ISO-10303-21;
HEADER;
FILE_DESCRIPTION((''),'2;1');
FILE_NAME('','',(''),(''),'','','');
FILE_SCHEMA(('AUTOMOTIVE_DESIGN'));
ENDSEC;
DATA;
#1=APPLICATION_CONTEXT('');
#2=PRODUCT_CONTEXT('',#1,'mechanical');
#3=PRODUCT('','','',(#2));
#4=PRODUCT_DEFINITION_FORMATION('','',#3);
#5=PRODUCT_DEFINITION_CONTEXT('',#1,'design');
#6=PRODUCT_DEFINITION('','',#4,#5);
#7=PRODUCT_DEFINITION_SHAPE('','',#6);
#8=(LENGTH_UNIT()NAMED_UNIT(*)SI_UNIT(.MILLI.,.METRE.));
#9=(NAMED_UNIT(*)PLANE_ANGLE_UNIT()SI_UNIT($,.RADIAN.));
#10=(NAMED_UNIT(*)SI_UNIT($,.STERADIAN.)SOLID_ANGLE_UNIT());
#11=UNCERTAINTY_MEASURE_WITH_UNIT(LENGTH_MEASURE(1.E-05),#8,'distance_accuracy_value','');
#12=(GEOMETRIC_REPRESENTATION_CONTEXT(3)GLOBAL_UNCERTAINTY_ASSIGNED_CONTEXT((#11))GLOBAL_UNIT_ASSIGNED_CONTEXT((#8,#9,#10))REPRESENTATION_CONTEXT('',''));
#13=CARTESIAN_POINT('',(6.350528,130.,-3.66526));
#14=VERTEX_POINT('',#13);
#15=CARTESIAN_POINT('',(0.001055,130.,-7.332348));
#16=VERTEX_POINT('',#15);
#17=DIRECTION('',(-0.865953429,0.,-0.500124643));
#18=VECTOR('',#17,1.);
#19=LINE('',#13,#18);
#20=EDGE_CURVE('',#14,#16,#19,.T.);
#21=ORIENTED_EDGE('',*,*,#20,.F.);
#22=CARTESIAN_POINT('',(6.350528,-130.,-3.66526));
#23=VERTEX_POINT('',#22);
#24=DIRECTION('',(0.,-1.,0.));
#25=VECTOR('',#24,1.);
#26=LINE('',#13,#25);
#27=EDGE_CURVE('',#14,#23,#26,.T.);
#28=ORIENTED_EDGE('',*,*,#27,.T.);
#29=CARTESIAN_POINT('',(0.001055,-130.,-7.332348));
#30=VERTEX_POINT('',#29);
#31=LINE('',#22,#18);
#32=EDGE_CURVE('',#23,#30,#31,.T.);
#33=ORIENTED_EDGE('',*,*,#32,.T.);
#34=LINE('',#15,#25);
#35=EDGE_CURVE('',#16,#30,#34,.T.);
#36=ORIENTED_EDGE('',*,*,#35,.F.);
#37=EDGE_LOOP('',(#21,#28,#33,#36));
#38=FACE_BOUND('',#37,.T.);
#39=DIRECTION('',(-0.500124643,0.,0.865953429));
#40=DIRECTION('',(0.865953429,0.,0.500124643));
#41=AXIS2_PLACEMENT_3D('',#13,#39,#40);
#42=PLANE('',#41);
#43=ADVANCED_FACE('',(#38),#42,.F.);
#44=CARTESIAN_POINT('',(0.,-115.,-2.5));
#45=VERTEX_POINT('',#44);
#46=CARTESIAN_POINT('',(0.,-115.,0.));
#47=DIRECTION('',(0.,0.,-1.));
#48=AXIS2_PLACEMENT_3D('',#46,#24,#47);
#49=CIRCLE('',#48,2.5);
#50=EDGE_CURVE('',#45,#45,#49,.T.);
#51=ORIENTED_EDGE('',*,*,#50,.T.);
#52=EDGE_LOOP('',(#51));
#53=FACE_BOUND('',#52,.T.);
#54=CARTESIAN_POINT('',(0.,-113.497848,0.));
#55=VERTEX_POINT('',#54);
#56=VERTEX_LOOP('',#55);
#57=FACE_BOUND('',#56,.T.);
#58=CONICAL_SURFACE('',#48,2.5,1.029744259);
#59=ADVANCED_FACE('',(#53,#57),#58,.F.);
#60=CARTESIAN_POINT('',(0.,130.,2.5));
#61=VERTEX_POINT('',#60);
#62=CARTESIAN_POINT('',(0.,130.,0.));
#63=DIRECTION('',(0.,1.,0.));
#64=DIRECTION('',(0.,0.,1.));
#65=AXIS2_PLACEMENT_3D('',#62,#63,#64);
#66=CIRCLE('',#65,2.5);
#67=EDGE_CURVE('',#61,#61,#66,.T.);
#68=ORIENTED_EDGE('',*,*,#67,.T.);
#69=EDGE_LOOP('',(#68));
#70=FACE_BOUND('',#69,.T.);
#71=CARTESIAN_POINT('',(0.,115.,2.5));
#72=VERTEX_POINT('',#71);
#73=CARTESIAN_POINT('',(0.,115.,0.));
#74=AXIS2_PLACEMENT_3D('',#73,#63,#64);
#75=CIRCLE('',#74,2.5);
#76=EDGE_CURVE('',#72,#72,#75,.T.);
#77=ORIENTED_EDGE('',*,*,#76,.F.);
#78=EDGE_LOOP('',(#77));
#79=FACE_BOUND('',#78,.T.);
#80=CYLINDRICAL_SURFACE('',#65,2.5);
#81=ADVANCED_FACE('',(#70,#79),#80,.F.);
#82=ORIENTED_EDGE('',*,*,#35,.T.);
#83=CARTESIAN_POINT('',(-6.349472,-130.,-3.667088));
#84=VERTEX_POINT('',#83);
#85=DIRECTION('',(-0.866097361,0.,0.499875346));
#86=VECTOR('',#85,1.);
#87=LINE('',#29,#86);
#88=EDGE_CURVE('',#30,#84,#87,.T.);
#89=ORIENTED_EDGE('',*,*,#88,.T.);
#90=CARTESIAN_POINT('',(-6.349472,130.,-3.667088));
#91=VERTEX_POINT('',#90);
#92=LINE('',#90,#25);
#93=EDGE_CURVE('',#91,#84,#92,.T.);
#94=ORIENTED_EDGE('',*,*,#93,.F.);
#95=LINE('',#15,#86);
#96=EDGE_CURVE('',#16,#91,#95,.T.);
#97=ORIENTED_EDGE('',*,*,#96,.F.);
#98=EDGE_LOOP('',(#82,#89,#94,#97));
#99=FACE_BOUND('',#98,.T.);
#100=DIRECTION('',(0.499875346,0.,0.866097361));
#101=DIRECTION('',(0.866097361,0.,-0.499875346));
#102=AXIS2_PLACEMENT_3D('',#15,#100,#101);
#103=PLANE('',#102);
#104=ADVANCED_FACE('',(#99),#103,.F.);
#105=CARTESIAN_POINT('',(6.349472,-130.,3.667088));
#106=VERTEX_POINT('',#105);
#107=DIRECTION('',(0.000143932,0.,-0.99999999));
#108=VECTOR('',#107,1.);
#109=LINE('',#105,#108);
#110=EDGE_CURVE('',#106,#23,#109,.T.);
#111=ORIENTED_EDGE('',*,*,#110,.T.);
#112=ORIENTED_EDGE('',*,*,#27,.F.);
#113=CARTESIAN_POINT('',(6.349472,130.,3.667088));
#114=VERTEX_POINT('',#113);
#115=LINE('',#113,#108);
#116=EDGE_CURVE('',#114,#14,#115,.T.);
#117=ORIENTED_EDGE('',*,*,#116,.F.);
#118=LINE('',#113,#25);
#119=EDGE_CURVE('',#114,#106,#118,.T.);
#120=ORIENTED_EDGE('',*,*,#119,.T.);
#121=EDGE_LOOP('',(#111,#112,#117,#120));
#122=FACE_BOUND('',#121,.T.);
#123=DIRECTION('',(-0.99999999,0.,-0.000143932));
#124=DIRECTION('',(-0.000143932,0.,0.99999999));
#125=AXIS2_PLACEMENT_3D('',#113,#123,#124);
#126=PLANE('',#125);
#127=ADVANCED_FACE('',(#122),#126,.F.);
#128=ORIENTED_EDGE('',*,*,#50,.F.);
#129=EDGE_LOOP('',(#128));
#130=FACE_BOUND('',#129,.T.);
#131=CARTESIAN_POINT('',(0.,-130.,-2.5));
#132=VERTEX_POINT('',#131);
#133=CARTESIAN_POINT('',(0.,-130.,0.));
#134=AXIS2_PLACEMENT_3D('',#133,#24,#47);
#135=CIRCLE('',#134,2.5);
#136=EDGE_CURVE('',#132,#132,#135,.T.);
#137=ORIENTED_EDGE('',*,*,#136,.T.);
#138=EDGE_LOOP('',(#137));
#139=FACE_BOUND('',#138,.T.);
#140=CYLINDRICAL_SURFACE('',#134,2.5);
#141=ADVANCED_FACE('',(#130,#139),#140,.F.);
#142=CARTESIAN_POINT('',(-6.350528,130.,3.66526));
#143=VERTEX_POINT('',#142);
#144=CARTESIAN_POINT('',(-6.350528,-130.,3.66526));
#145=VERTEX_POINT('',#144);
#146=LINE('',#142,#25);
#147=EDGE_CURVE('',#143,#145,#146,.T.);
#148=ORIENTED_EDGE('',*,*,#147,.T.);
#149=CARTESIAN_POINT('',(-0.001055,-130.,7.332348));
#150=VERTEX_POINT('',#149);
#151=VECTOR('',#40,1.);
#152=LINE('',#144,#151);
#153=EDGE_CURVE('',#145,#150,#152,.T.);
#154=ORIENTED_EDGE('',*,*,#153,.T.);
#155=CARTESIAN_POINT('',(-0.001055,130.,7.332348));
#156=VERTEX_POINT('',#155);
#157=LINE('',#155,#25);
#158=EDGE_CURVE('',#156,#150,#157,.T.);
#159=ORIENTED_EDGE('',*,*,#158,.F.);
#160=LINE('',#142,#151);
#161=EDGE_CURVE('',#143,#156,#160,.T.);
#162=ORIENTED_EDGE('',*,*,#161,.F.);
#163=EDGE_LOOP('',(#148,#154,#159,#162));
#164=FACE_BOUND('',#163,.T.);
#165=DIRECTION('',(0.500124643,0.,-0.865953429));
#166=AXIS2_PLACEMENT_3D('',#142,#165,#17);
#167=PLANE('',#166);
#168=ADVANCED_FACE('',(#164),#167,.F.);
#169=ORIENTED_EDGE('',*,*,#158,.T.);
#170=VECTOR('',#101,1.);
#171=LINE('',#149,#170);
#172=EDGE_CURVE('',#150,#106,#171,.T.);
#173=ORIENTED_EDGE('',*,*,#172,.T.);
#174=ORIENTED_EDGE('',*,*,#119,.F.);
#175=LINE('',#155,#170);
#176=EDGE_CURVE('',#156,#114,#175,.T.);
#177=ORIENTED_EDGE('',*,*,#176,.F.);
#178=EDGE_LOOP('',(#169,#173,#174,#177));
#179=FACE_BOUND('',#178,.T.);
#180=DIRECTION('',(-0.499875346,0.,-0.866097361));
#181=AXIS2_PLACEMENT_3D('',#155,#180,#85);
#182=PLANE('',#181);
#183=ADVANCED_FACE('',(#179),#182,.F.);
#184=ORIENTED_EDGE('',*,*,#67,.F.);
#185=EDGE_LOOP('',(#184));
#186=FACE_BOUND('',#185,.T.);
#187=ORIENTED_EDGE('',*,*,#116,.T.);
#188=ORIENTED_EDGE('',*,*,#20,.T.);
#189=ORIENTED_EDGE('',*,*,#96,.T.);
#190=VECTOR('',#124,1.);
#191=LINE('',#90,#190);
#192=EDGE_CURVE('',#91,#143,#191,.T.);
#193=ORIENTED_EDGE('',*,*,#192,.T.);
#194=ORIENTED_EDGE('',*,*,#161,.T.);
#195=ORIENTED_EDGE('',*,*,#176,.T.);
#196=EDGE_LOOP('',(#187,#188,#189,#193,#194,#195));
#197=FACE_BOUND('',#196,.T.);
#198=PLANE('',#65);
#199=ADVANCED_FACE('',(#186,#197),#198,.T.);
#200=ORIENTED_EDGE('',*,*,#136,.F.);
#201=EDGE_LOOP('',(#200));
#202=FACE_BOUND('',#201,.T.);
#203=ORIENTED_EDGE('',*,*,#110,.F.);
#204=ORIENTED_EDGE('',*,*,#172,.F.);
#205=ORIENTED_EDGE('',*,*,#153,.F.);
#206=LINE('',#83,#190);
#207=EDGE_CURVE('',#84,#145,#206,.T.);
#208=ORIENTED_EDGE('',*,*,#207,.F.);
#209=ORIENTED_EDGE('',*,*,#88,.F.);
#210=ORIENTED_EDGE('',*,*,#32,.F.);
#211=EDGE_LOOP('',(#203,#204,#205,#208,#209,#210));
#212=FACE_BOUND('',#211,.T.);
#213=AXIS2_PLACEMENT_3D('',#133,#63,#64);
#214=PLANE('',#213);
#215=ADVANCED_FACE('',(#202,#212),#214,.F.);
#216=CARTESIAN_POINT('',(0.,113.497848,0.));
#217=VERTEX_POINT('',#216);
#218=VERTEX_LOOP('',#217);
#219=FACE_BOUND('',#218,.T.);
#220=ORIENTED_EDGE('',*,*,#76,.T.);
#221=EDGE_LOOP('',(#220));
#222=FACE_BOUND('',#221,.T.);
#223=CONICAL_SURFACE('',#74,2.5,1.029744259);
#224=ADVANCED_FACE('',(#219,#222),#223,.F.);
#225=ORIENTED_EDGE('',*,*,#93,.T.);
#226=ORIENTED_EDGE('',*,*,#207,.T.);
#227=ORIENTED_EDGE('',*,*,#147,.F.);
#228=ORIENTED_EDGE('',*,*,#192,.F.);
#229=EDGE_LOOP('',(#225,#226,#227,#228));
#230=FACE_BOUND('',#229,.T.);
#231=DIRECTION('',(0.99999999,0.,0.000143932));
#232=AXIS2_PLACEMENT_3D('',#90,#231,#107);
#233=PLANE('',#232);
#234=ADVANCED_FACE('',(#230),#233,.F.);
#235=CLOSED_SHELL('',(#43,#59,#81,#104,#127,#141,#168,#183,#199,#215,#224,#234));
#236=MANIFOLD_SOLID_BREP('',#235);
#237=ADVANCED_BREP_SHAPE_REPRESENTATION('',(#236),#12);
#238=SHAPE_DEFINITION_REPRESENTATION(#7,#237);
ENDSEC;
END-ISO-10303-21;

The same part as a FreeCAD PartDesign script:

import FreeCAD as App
import Part
import Sketcher
from FreeCAD import Vector

doc = App.newDocument("Part")
params = doc.addObject("Spreadsheet::Sheet", "Params")
for row, (alias, value) in enumerate([
    ("pad1_length", "260 mm"),
    ("sketch2_diameter", "5 mm"),
    ("hole_diameter", "5 mm"),
    ("hole_depth", "15 mm"),
    ("sketch3_diameter", "5 mm"),
    ("hole2_diameter", "5 mm"),
    ("hole2_depth", "15 mm"),
], start=1):
    params.set(f"A{row}", alias)
    params.set(f"B{row}", "=" + value)
    params.setAlias(f"B{row}", alias)

body = doc.addObject("PartDesign::Body", "Body")

# Sketch on XZ plane
sketch1 = body.newObject("Sketcher::SketchObject", "Sketch")
sketch1.AttachmentSupport = (doc.getObject("XZ_Plane"), [""])
sketch1.MapMode = "FlatFace"
sketch1.addGeometry(Part.LineSegment(Vector(6, 4, 0), Vector(6, -4, 0)), False)
sketch1.addGeometry(Part.LineSegment(Vector(6, -4, 0), Vector(0, -7, 0)), False)
sketch1.addGeometry(Part.LineSegment(Vector(0, -7, 0), Vector(-6, -4, 0)), False)
sketch1.addGeometry(Part.LineSegment(Vector(-6, -4, 0), Vector(-6, 4, 0)), False)
sketch1.addGeometry(Part.LineSegment(Vector(-6, 4, 0), Vector(0, 7, 0)), False)
sketch1.addGeometry(Part.LineSegment(Vector(0, 7, 0), Vector(6, 4, 0)), False)
sketch1.addConstraint(Sketcher.Constraint("Coincident", 0, 2, 1, 1))
sketch1.addConstraint(Sketcher.Constraint("Coincident", 1, 2, 2, 1))
sketch1.addConstraint(Sketcher.Constraint("Coincident", 2, 2, 3, 1))
sketch1.addConstraint(Sketcher.Constraint("Coincident", 3, 2, 4, 1))
sketch1.addConstraint(Sketcher.Constraint("Coincident", 4, 2, 5, 1))
sketch1.addConstraint(Sketcher.Constraint("Coincident", 5, 2, 0, 1))
sketch1.addConstraint(Sketcher.Constraint("Symmetric", 0, 2, 3, 2, -1, 1))
sketch1.addConstraint(Sketcher.Constraint("Symmetric", 1, 2, 4, 2, -1, 1))
sketch1.addConstraint(Sketcher.Constraint("Symmetric", 2, 2, 5, 2, -1, 1))
sketch1.addConstraint(Sketcher.Constraint("Equal", 0, 1))
sketch1.addConstraint(Sketcher.Constraint("Equal", 1, 2))
sketch1.addConstraint(Sketcher.Constraint("DistanceX", 2, 2, 0, 2, 12.7))
sketch1.addConstraint(Sketcher.Constraint("Distance", 0, 7.332348))
sketch1.addConstraint(Sketcher.Constraint("DistanceY", 0, 2, -1, 1, 3.66526))
sketch1.addConstraint(Sketcher.Constraint("DistanceX", 4, 2, 1, 2, 0.002111))
pad1 = body.newObject("PartDesign::Pad", "Pad")
pad1.Profile = sketch1
pad1.setExpression("Length", "Params.pad1_length")
pad1.Midplane = True

# Sketch on XZ plane
sketch2 = body.newObject("Sketcher::SketchObject", "Sketch001")
sketch2.AttachmentSupport = (doc.getObject("XZ_Plane"), [""])
sketch2.MapMode = "FlatFace"
sketch2.AttachmentOffset = App.Placement(Vector(0, 0, -130), App.Rotation())
sketch2.addGeometry(Part.Circle(Vector(0, 0, 0), Vector(0, 0, 1), 2.5), False)
sketch2.addConstraint(Sketcher.Constraint("Coincident", 0, 3, -1, 1))
sketch2.addConstraint(Sketcher.Constraint("Diameter", 0, 5.0))
sketch2.setExpression("Constraints[1]", "Params.sketch2_diameter")
doc.recompute()
hole = body.newObject("PartDesign::Hole", "Hole")
hole.Profile = sketch2
hole.ThreadType = "None"
hole.setExpression("Diameter", "Params.hole_diameter")
hole.DepthType = "Dimension"
hole.setExpression("Depth", "Params.hole_depth")
hole.DrillPoint = "Angled"
hole.DrillPointAngle = 118
hole.Reversed = True

# Sketch on XZ plane
sketch3 = body.newObject("Sketcher::SketchObject", "Sketch002")
sketch3.AttachmentSupport = (doc.getObject("XZ_Plane"), [""])
sketch3.MapMode = "FlatFace"
sketch3.AttachmentOffset = App.Placement(Vector(0, 0, 130), App.Rotation())
sketch3.addGeometry(Part.Circle(Vector(0, 0, 0), Vector(0, 0, 1), 2.5), False)
sketch3.addConstraint(Sketcher.Constraint("Coincident", 0, 3, -1, 1))
sketch3.addConstraint(Sketcher.Constraint("Diameter", 0, 5.0))
sketch3.setExpression("Constraints[1]", "Params.sketch3_diameter")
doc.recompute()
hole2 = body.newObject("PartDesign::Hole", "Hole001")
hole2.Profile = sketch3
hole2.ThreadType = "None"
hole2.setExpression("Diameter", "Params.hole2_diameter")
hole2.DepthType = "Dimension"
hole2.setExpression("Depth", "Params.hole2_depth")
hole2.DrillPoint = "Angled"
hole2.DrillPointAngle = 118

doc.recompute()
